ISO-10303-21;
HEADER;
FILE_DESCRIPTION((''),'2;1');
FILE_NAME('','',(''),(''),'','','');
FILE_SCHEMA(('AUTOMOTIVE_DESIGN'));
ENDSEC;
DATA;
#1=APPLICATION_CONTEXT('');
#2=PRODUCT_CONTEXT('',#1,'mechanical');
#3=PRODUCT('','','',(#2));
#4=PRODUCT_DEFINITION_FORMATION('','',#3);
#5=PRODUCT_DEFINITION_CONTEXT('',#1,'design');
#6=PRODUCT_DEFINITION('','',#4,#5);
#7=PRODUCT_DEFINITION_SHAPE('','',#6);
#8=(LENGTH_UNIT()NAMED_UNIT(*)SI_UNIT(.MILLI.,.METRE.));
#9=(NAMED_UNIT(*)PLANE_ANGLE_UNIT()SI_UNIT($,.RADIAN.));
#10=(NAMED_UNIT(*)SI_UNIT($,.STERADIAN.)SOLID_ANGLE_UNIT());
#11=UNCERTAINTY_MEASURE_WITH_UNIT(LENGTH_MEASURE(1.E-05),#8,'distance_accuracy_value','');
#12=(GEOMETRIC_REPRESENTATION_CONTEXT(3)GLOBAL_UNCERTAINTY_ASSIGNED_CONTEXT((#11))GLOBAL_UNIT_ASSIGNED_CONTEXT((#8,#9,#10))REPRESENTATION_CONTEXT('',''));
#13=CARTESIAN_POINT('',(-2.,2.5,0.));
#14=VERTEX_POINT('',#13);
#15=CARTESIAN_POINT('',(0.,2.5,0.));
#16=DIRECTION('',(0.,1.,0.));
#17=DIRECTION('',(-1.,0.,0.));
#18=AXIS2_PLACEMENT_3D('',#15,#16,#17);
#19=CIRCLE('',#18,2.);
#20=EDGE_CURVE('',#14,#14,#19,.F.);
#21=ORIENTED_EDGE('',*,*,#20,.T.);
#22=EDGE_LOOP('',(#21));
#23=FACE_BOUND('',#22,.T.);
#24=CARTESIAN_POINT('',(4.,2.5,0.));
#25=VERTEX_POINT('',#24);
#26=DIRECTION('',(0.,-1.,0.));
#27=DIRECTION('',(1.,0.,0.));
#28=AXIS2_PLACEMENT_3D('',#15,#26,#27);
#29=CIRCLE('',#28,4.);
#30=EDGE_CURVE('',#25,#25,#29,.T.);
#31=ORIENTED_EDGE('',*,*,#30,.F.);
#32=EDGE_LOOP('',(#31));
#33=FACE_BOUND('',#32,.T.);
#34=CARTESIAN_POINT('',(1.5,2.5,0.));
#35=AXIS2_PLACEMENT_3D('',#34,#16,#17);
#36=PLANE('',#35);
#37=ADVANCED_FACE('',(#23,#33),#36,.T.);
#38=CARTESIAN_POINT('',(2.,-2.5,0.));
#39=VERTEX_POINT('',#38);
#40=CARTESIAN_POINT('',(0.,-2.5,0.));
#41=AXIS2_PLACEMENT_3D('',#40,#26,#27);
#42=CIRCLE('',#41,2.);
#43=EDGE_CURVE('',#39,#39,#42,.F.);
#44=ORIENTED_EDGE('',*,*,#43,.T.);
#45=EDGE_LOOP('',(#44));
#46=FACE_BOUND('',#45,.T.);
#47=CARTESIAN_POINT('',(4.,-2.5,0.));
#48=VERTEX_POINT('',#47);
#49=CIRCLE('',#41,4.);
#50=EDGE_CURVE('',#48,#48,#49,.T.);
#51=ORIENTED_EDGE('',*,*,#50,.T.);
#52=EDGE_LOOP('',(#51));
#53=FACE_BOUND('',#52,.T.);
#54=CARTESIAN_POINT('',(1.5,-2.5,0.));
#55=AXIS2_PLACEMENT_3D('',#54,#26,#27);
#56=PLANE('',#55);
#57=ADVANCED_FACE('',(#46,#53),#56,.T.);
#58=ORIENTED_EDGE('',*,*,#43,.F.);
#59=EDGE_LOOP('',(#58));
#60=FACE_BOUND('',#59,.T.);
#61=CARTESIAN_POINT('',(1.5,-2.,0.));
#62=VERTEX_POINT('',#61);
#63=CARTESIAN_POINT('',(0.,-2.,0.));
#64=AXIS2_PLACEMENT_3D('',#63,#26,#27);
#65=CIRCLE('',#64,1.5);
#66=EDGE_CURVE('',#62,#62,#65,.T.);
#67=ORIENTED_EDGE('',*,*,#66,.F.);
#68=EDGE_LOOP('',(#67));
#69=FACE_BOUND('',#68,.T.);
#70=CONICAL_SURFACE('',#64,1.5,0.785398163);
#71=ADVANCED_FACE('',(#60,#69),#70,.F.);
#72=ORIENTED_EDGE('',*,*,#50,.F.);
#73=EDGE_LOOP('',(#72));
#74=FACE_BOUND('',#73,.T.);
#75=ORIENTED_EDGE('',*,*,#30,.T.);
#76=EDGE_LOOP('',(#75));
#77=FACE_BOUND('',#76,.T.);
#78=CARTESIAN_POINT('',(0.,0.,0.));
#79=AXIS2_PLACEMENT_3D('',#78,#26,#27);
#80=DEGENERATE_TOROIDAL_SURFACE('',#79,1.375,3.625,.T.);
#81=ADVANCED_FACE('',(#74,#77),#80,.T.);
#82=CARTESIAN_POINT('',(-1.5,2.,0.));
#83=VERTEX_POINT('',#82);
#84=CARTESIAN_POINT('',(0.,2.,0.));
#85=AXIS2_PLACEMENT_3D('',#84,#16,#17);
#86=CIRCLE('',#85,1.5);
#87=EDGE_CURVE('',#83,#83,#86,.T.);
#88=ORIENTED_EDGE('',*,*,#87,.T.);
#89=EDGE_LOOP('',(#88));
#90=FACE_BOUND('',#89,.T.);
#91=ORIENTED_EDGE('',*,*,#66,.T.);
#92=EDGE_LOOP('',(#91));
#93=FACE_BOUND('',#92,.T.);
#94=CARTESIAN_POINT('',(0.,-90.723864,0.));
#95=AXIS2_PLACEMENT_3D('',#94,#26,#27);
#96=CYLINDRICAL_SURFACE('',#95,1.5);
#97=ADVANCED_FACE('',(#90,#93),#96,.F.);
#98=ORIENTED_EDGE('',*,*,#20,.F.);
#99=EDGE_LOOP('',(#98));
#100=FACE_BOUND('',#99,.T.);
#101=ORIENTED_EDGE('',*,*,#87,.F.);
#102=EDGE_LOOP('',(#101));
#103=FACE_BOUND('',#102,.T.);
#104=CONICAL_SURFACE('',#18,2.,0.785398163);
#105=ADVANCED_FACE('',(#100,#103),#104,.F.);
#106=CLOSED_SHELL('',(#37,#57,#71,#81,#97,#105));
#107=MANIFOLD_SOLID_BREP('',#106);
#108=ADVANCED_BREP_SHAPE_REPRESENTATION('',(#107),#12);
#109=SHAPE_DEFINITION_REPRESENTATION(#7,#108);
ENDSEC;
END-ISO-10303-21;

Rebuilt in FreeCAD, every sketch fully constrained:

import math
import FreeCAD as App
import Part
import Sketcher

V = App.Vector
Q = App.Units.Quantity


def edges_at(feature, points):
    """Names of the edges that pass closest to the given points."""
    edges = feature.Shape.Edges
    near = lambda p: min(range(len(edges)), key=lambda i: edges[i].distToShape(Part.Vertex(*p))[0])
    return sorted({f"Edge{near(p) + 1}" for p in points})

doc = App.newDocument("Part")
body = doc.addObject("PartDesign::Body", "Body")

sketch1 = body.newObject("Sketcher::SketchObject", "Sketch")
sketch1.AttachmentSupport = (doc.getObject("XY_Plane"), [""])
sketch1.MapMode = "FlatFace"
sketch1.addGeometry([
    Part.LineSegment(V(1.5, 2.5, 0), V(1.5, -2.5, 0)),
    Part.LineSegment(V(1.5, -2.5, 0), V(4, -2.5, 0)),
    Part.ArcOfCircle(Part.Circle(V(1.375, 0, 0), V(0, 0, 1), 3.625), math.radians(-43.602819), math.radians(43.602819)),
    Part.LineSegment(V(4, 2.5, 0), V(1.5, 2.5, 0)),
], False)
sketch1.addConstraint([
    Sketcher.Constraint("Coincident", 0, 2, 1, 1),
    Sketcher.Constraint("Coincident", 1, 2, 2, 1),
    Sketcher.Constraint("Coincident", 2, 2, 3, 1),
    Sketcher.Constraint("Coincident", 3, 2, 0, 1),
    Sketcher.Constraint("Vertical", 0),
    Sketcher.Constraint("Horizontal", 1),
    Sketcher.Constraint("Horizontal", 3),
    Sketcher.Constraint("Symmetric", 1, 2, 2, 2, -1),
    Sketcher.Constraint("DistanceY", 0, 2, 0, 1, Q("5 mm")),
    Sketcher.Constraint("DistanceX", 1, 1, 1, 2, Q("2.5 mm")),
    Sketcher.Constraint("DistanceX", -1, 1, 1, 2, Q("4 mm")),
    Sketcher.Constraint("Radius", 2, Q("3.625 mm")),
])
revolution = body.newObject("PartDesign::Revolution", "Revolution")
revolution.Profile = sketch1
revolution.ReferenceAxis = (sketch1, ["V_Axis"])
revolution.Angle = 360
doc.recompute()

chamfer = body.newObject("PartDesign::Chamfer", "Chamfer")
chamfer.Base = (revolution, edges_at(revolution, [(-1.5, 2.5, 0), (-1.5, -2.5, 0)]))
chamfer.Size = 0.5

doc.recompute()
